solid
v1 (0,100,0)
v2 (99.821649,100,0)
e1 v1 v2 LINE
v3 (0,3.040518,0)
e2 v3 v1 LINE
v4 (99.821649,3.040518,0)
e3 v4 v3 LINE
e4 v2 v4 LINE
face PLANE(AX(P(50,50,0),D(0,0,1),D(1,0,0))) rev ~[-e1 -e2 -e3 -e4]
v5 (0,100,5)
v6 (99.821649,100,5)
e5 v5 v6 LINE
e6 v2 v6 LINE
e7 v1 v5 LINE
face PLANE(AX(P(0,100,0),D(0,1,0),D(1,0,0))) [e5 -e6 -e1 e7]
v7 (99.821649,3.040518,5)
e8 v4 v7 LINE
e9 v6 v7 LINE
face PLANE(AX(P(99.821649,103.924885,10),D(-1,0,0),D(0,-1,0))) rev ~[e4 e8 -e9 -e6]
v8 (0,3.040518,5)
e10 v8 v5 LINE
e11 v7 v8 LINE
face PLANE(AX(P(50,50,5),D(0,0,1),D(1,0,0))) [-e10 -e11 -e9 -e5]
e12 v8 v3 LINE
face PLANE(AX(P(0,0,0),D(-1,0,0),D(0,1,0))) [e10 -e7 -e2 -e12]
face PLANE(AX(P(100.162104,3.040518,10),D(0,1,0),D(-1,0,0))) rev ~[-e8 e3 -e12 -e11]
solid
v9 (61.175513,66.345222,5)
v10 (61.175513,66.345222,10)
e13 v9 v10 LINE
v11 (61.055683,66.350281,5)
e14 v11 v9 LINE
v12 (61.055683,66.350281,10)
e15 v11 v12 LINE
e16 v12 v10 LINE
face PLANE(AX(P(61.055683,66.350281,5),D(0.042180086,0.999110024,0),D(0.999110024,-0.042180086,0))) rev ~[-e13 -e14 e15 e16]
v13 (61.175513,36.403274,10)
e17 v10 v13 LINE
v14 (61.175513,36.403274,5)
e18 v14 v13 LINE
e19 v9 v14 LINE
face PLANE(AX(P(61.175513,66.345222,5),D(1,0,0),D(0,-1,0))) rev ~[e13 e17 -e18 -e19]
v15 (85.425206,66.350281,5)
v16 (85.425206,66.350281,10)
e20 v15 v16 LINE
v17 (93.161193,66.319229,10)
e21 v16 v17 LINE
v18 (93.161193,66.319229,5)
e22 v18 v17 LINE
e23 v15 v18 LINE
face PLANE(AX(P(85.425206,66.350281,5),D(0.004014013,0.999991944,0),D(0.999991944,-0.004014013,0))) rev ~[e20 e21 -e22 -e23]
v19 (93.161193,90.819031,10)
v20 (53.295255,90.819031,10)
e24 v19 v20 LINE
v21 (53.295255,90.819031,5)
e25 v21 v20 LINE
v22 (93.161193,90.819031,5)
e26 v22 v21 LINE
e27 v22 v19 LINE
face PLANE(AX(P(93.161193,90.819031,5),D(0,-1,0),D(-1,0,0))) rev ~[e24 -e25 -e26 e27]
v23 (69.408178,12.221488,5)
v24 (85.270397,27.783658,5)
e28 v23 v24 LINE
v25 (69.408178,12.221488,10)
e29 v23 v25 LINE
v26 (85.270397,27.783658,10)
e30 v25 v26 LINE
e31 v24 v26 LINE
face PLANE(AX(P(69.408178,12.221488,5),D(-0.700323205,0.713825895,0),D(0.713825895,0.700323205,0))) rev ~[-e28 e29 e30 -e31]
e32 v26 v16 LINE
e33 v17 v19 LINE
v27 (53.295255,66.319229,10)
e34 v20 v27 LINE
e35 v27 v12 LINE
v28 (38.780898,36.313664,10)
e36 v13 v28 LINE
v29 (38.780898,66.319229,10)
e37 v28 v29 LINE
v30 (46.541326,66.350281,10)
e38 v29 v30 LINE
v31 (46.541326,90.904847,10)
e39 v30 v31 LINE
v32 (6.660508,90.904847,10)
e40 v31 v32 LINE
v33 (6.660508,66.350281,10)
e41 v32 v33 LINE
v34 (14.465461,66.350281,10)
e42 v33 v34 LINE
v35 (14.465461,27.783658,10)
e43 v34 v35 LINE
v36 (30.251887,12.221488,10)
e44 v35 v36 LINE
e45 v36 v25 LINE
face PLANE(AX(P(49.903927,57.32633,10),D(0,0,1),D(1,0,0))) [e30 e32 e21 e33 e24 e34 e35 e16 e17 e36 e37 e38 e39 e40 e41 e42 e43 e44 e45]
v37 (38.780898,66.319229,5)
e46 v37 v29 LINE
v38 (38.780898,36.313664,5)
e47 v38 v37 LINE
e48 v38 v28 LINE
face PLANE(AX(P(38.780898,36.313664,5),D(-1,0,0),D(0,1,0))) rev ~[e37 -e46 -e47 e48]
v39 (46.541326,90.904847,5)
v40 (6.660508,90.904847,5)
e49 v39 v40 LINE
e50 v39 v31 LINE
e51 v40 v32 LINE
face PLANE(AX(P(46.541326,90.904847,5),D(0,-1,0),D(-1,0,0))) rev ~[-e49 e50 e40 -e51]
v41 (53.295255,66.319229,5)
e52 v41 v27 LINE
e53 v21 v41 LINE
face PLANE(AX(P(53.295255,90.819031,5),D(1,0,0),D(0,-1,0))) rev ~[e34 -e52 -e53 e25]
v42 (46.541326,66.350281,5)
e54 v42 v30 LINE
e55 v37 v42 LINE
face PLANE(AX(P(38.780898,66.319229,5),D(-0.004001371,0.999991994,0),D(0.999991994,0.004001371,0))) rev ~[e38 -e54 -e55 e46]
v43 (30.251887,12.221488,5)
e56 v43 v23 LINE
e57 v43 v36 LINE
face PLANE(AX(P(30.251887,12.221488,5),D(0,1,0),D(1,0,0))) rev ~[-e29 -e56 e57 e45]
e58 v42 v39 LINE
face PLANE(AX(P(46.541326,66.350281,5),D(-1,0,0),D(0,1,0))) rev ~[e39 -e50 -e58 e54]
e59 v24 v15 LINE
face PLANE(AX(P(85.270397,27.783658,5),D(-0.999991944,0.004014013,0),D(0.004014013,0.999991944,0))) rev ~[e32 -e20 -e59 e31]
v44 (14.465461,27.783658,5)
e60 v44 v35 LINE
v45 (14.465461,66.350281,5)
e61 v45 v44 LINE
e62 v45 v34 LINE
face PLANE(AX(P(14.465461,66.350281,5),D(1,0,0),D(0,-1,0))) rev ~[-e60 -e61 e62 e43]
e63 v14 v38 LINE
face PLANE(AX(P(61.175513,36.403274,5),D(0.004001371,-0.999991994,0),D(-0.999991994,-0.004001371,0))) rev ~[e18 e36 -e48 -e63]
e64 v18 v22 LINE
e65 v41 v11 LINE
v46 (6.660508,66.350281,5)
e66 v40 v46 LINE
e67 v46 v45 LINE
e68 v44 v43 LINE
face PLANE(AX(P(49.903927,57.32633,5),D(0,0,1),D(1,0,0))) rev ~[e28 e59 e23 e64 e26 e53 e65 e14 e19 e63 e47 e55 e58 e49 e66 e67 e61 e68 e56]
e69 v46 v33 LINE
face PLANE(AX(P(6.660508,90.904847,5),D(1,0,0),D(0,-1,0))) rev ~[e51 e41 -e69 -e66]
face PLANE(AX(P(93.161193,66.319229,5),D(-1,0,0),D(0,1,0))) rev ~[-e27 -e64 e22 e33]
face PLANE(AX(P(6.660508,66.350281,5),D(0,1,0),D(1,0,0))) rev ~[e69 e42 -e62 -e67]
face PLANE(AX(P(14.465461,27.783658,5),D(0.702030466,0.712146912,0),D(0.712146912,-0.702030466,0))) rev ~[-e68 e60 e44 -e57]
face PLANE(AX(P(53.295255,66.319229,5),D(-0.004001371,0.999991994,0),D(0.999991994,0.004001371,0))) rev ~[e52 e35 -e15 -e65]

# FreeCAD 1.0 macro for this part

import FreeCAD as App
import Part
import Sketcher

V = App.Vector
Q = App.Units.Quantity

doc = App.newDocument("Part")
body = doc.addObject("PartDesign::Body", "Body")

# Sketch on XY plane
sketch1 = body.newObject("Sketcher::SketchObject", "Sketch")
sketch1.AttachmentSupport = (doc.getObject("XY_Plane"), [""])
sketch1.MapMode = "FlatFace"
sketch1.addGeometry([
    Part.LineSegment(V(0, 100, 0), V(0, 0, 0)),
    Part.LineSegment(V(0, 0, 0), V(100, 0, 0)),
    Part.LineSegment(V(100, 0, 0), V(100, 100, 0)),
    Part.LineSegment(V(100, 100, 0), V(0, 100, 0)),
], False)
sketch1.addConstraint([
    Sketcher.Constraint("Coincident", 0, 2, 1, 1),
    Sketcher.Constraint("Coincident", 1, 2, 2, 1),
    Sketcher.Constraint("Coincident", 2, 2, 3, 1),
    Sketcher.Constraint("Coincident", 3, 2, 0, 1),
    Sketcher.Constraint("Vertical", 0),
    Sketcher.Constraint("Horizontal", 1),
    Sketcher.Constraint("Vertical", 2),
    Sketcher.Constraint("Horizontal", 3),
    Sketcher.Constraint("Coincident", 0, 2, -1, 1),
    Sketcher.Constraint("Equal", 3, 0),
    Sketcher.Constraint("DistanceX", 1, 1, 1, 2, 100.0),
])
pad1 = body.newObject("PartDesign::Pad", "Pad")
pad1.Profile = sketch1
pad1.Length = 5

# Sketch on XY plane
sketch2 = body.newObject("Sketcher::SketchObject", "Sketch001")
sketch2.AttachmentSupport = (doc.getObject("XY_Plane"), [""])
sketch2.MapMode = "FlatFace"
sketch2.AttachmentOffset = App.Placement(V(0, 0, 10), App.Rotation())
sketch2.addGeometry([
    Part.LineSegment(V(100.2, 3, 0), V(0, 3, 0)),
    Part.LineSegment(V(0, 3, 0), V(0, 0, 0)),
    Part.LineSegment(V(0, 0, 0), V(100.2, 0, 0)),
    Part.LineSegment(V(100.2, 0, 0), V(100.2, 3, 0)),
], False)
sketch2.addConstraint([
    Sketcher.Constraint("Coincident", 0, 2, 1, 1),
    Sketcher.Constraint("Coincident", 1, 2, 2, 1),
    Sketcher.Constraint("Coincident", 2, 2, 3, 1),
    Sketcher.Constraint("Coincident", 3, 2, 0, 1),
    Sketcher.Constraint("Horizontal", 0),
    Sketcher.Constraint("Vertical", 1),
    Sketcher.Constraint("Horizontal", 2),
    Sketcher.Constraint("Vertical", 3),
    Sketcher.Constraint("Coincident", 1, 2, -1, 1),
    Sketcher.Constraint("DistanceY", 1, 2, 1, 1, 3.040518),
    Sketcher.Constraint("DistanceX", 0, 2, 0, 1, 100.162104),
])
pocket1 = body.newObject("PartDesign::Pocket", "Pocket")
pocket1.Profile = sketch2
pocket1.Length = 54.1

# Sketch on XY plane
sketch3 = body.newObject("Sketcher::SketchObject", "Sketch002")
sketch3.AttachmentSupport = (doc.getObject("XY_Plane"), [""])
sketch3.MapMode = "FlatFace"
sketch3.AttachmentOffset = App.Placement(V(0, 0, 10), App.Rotation())
sketch3.addGeometry([
    Part.LineSegment(V(100, 104, 0), V(100, -5, 0)),
    Part.LineSegment(V(100, -5, 0), V(108, -5, 0)),
    Part.LineSegment(V(108, -5, 0), V(108, 104, 0)),
    Part.LineSegment(V(108, 104, 0), V(100, 104, 0)),
], False)
sketch3.addConstraint([
    Sketcher.Constraint("Coincident", 0, 2, 1, 1),
    Sketcher.Constraint("Coincident", 1, 2, 2, 1),
    Sketcher.Constraint("Coincident", 2, 2, 3, 1),
    Sketcher.Constraint("Coincident", 3, 2, 0, 1),
    Sketcher.Constraint("Vertical", 0),
    Sketcher.Constraint("Horizontal", 1),
    Sketcher.Constraint("Vertical", 2),
    Sketcher.Constraint("Horizontal", 3),
    Sketcher.Constraint("DistanceX", 1, 1, 1, 2, 8.235999),
    Sketcher.Constraint("DistanceY", 0, 2, 0, 1, 109.385088),
    Sketcher.Constraint("DistanceX", -1, 1, 0, 2, 99.821649),
    Sketcher.Constraint("DistanceY", 0, 2, -1, 1, 5.460203),
])
pocket2 = body.newObject("PartDesign::Pocket", "Pocket001")
pocket2.Profile = sketch3
pocket2.Length = 25
body2 = doc.addObject("PartDesign::Body", "Body001")

# Sketch on XY plane
sketch4 = body2.newObject("Sketcher::SketchObject", "Sketch003")
sketch4.AttachmentSupport = (doc.getObject("XY_Plane001"), [""])
sketch4.MapMode = "FlatFace"
sketch4.AttachmentOffset = App.Placement(V(0, 0, 5), App.Rotation())
sketch4.addGeometry([
    Part.LineSegment(V(46.54, 90.9, 0), V(6.66, 90.9, 0)),  # 0
    Part.LineSegment(V(6.66, 90.9, 0), V(6.66, 66.35, 0)),  # 1
    Part.LineSegment(V(6.66, 66.35, 0), V(14.47, 66.35, 0)),  # 2
    Part.LineSegment(V(14.47, 66.35, 0), V(14.47, 27.78, 0)),  # 3
    Part.LineSegment(V(14.47, 27.78, 0), V(30.25, 12.22, 0)),  # 4
    Part.LineSegment(V(30.25, 12.22, 0), V(69.41, 12.22, 0)),  # 5
    Part.LineSegment(V(69.41, 12.22, 0), V(85.27, 27.78, 0)),  # 6
    Part.LineSegment(V(85.27, 27.78, 0), V(85.43, 66.35, 0)),  # 7
    Part.LineSegment(V(85.43, 66.35, 0), V(93.16, 66.32, 0)),  # 8
    Part.LineSegment(V(93.16, 66.32, 0), V(93.16, 90.82, 0)),  # 9
    Part.LineSegment(V(93.16, 90.82, 0), V(53.3, 90.82, 0)),  # 10
    Part.LineSegment(V(53.3, 90.82, 0), V(53.3, 66.32, 0)),  # 11
    Part.LineSegment(V(53.3, 66.32, 0), V(61.06, 66.35, 0)),  # 12
    Part.LineSegment(V(61.06, 66.35, 0), V(61.18, 66.35, 0)),  # 13
    Part.LineSegment(V(61.18, 66.35, 0), V(61.18, 36.4, 0)),  # 14
    Part.LineSegment(V(61.18, 36.4, 0), V(38.78, 36.31, 0)),  # 15
    Part.LineSegment(V(38.78, 36.31, 0), V(38.78, 66.32, 0)),  # 16
    Part.LineSegment(V(38.78, 66.32, 0), V(46.54, 66.35, 0)),  # 17
    Part.LineSegment(V(46.54, 66.35, 0), V(46.54, 90.9, 0)),  # 18
], False)
sketch4.addConstraint([
    Sketcher.Constraint("Coincident", 0, 2, 1, 1),
    Sketcher.Constraint("Coincident", 1, 2, 2, 1),
    Sketcher.Constraint("Coincident", 2, 2, 3, 1),
    Sketcher.Constraint("Coincident", 3, 2, 4, 1),
    Sketcher.Constraint("Coincident", 4, 2, 5, 1),
    Sketcher.Constraint("Coincident", 5, 2, 6, 1),
    Sketcher.Constraint("Coincident", 6, 2, 7, 1),
    Sketcher.Constraint("Coincident", 7, 2, 8, 1),
    Sketcher.Constraint("Coincident", 8, 2, 9, 1),
    Sketcher.Constraint("Coincident", 9, 2, 10, 1),
    Sketcher.Constraint("Coincident", 10, 2, 11, 1),
    Sketcher.Constraint("Coincident", 11, 2, 12, 1),
    Sketcher.Constraint("Coincident", 12, 2, 13, 1),
    Sketcher.Constraint("Coincident", 13, 2, 14, 1),
    Sketcher.Constraint("Coincident", 14, 2, 15, 1),
    Sketcher.Constraint("Coincident", 15, 2, 16, 1),
    Sketcher.Constraint("Coincident", 16, 2, 17, 1),
    Sketcher.Constraint("Coincident", 17, 2, 18, 1),
    Sketcher.Constraint("Coincident", 18, 2, 0, 1),
    Sketcher.Constraint("Horizontal", 0),
    Sketcher.Constraint("Vertical", 1),
    Sketcher.Constraint("Horizontal", 2),
    Sketcher.Constraint("Vertical", 3),
    Sketcher.Constraint("Horizontal", 5),
    Sketcher.Constraint("Vertical", 9),
    Sketcher.Constraint("Horizontal", 10),
    Sketcher.Constraint("Vertical", 11),
    Sketcher.Constraint("Vertical", 14),
    Sketcher.Constraint("Vertical", 16),
    Sketcher.Constraint("Vertical", 18),
    Sketcher.Constraint("Perpendicular", 7, 8),
    Sketcher.Constraint("Parallel", 12, 15),
    Sketcher.Constraint("Parallel", 15, 17),
    Sketcher.Constraint("Horizontal", 3, 2, 6, 2),
    Sketcher.Constraint("Horizontal", 2, 2, 7, 2),
    Sketcher.Constraint("Horizontal", 8, 2, 11, 2),
    Sketcher.Constraint("Horizontal", 7, 2, 12, 2),
    Sketcher.Constraint("Horizontal", 11, 2, 16, 2),
    Sketcher.Constraint("Horizontal", 12, 2, 17, 2),
    Sketcher.Constraint("Angle", 7, Q("89.770013 deg")),
    Sketcher.Constraint("DistanceX", 5, 1, 5, 2, 39.156292),
    Sketcher.Constraint("DistanceY", 14, 2, 14, 1, 29.941949),
    Sketcher.Constraint("DistanceX", -1, 1, 15, 2, 38.780898),
    Sketcher.Constraint("Distance", 4, 22.167372),
    Sketcher.Constraint("Distance", 6, 22.221412),
    Sketcher.Constraint("Distance", 8, 7.736049),
    Sketcher.Constraint("Distance", 12, 7.76049),
    Sketcher.Constraint("DistanceX", 0, 2, 0, 1, 39.880818),
    Sketcher.Constraint("DistanceX", 2, 1, 2, 2, 7.804953),
    Sketcher.Constraint("DistanceX", 10, 2, 10, 1, 39.865938),
    Sketcher.Constraint("DistanceY", 1, 2, 1, 1, 24.554566),
    Sketcher.Constraint("DistanceY", 3, 2, 3, 1, 38.566623),
    Sketcher.Constraint("DistanceY", 9, 1, 9, 2, 24.499802),
    Sketcher.Constraint("DistanceY", 16, 1, 16, 2, 30.005565),
    Sketcher.Constraint("DistanceY", -1, 1, 1, 2, 66.350281),
    Sketcher.Constraint("DistanceY", -1, 1, 4, 2, 12.221488),
    Sketcher.Constraint("DistanceX", 12, 2, 13, 2, 0.11983),
])
pad2 = body2.newObject("PartDesign::Pad", "Pad001")
pad2.Profile = sketch4
pad2.Length = 5

doc.recompute()
